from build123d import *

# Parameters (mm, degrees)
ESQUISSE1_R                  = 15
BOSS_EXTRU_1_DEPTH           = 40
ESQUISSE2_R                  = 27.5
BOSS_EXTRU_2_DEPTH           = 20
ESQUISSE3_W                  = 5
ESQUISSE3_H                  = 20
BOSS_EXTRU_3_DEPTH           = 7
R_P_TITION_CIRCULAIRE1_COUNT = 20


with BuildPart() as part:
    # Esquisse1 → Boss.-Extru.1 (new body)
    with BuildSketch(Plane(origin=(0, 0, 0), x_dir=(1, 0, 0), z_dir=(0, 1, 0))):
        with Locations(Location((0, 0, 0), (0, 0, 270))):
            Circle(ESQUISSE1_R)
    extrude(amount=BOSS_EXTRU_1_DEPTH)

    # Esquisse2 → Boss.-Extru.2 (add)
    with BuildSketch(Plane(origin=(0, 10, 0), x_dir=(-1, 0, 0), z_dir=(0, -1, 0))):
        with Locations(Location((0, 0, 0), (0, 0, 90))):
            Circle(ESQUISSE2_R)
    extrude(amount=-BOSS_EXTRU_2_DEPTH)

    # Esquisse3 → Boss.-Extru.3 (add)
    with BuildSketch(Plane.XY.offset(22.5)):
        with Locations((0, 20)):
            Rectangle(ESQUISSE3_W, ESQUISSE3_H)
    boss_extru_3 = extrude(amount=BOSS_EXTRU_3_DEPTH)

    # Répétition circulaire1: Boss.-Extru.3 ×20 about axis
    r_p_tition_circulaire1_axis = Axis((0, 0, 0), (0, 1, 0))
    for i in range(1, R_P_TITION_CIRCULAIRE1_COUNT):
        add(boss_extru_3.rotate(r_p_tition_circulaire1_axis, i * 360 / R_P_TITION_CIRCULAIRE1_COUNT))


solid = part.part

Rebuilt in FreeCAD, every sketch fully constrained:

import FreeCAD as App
import Part
import Sketcher
Q = App.Units.Quantity


def add_polygon(sketch, points):
    """Adds a closed chain of lines whose ends are joined by coincident constraints."""
    first, n = sketch.GeometryCount, len(points)
    for a, b in zip(points, points[1:] + points[:1]):
        sketch.addGeometry(Part.LineSegment(App.Vector(*a, 0), App.Vector(*b, 0)), False)
    for i in range(n):
        sketch.addConstraint(Sketcher.Constraint("Coincident", first + i, 2, first + (i + 1) % n, 1))

doc = App.newDocument("Part")
params = doc.addObject("Spreadsheet::Sheet", "Params")
for row, (alias, value) in enumerate([
    ("sketch1_diameter", "30 mm"),
    ("pad1_length", "40 mm"),
    ("sketch2_diameter", "55 mm"),
    ("pad2_length", "20 mm"),
    ("sketch3_width", "5 mm"),
    ("sketch3_height", "20 mm"),
    ("pad3_length", "7 mm"),
], start=1):
    params.set(f"A{row}", alias)
    params.set(f"B{row}", "=" + value)
    params.setAlias(f"B{row}", alias)

body = doc.addObject("PartDesign::Body", "Body")

# Sketch on XZ plane
sketch1 = body.newObject("Sketcher::SketchObject", "Sketch")
sketch1.AttachmentSupport = (doc.getObject("XZ_Plane"), [""])
sketch1.MapMode = "FlatFace"
sketch1.addGeometry(Part.Circle(App.Vector(0, 0, 0), App.Vector(0, 0, 1), 15), False)
sketch1.addConstraint(Sketcher.Constraint("Coincident", 0, 3, -1, 1))
sketch1.addConstraint(Sketcher.Constraint("Diameter", 0, Q("30 mm")))
sketch1.setExpression("Constraints[1]", "Params.sketch1_diameter")
pad1 = body.newObject("PartDesign::Pad", "Pad")
pad1.Profile = sketch1
pad1.setExpression("Length", "Params.pad1_length")
pad1.Reversed = True

# Sketch on XZ plane
sketch2 = body.newObject("Sketcher::SketchObject", "Sketch001")
sketch2.AttachmentSupport = (doc.getObject("XZ_Plane"), [""])
sketch2.MapMode = "FlatFace"
sketch2.AttachmentOffset = App.Placement(App.Vector(0, 0, -10), App.Rotation())
sketch2.addGeometry(Part.Circle(App.Vector(0, 0, 0), App.Vector(0, 0, 1), 27.5), False)
sketch2.addConstraint(Sketcher.Constraint("Coincident", 0, 3, -1, 1))
sketch2.addConstraint(Sketcher.Constraint("Diameter", 0, Q("55 mm")))
sketch2.setExpression("Constraints[1]", "Params.sketch2_diameter")
pad2 = body.newObject("PartDesign::Pad", "Pad001")
pad2.Profile = sketch2
pad2.setExpression("Length", "Params.pad2_length")
pad2.Reversed = True

# Sketch on XY plane
sketch3 = body.newObject("Sketcher::SketchObject", "Sketch002")
sketch3.AttachmentSupport = (doc.getObject("XY_Plane"), [""])
sketch3.MapMode = "FlatFace"
sketch3.AttachmentOffset = App.Placement(App.Vector(0, 0, 22.5), App.Rotation())
add_polygon(sketch3, [(-2.5, 30), (-2.5, 10), (2.5, 10), (2.5, 30)])  # lines 0-3
sketch3.addConstraint(Sketcher.Constraint("Vertical", 0))
sketch3.addConstraint(Sketcher.Constraint("Horizontal", 1))
sketch3.addConstraint(Sketcher.Constraint("Vertical", 2))
sketch3.addConstraint(Sketcher.Constraint("Horizontal", 3))
sketch3.addConstraint(Sketcher.Constraint("DistanceX", 1, 1, 1, 2, Q("5 mm")))
sketch3.addConstraint(Sketcher.Constraint("DistanceY", 0, 2, 0, 1, Q("20 mm")))
sketch3.addConstraint(Sketcher.Constraint("DistanceY", -1, 1, 0, 2, Q("10 mm")))
sketch3.addConstraint(Sketcher.Constraint("DistanceX", 0, 2, -1, 1, Q("2.5 mm")))
sketch3.setExpression("Constraints[8]", "Params.sketch3_width")
sketch3.setExpression("Constraints[9]", "Params.sketch3_height")
pad3 = body.newObject("PartDesign::Pad", "Pad002")
pad3.Profile = sketch3
pad3.setExpression("Length", "Params.pad3_length")
doc.recompute()

polarpattern = body.newObject("PartDesign::PolarPattern", "PolarPattern")
polarpattern.Originals = [pad3]
polarpattern.Axis = (doc.getObject("Y_Axis"), [""])
polarpattern.Angle = 360
polarpattern.Occurrences = 20
body.Tip = polarpattern

doc.recompute()
